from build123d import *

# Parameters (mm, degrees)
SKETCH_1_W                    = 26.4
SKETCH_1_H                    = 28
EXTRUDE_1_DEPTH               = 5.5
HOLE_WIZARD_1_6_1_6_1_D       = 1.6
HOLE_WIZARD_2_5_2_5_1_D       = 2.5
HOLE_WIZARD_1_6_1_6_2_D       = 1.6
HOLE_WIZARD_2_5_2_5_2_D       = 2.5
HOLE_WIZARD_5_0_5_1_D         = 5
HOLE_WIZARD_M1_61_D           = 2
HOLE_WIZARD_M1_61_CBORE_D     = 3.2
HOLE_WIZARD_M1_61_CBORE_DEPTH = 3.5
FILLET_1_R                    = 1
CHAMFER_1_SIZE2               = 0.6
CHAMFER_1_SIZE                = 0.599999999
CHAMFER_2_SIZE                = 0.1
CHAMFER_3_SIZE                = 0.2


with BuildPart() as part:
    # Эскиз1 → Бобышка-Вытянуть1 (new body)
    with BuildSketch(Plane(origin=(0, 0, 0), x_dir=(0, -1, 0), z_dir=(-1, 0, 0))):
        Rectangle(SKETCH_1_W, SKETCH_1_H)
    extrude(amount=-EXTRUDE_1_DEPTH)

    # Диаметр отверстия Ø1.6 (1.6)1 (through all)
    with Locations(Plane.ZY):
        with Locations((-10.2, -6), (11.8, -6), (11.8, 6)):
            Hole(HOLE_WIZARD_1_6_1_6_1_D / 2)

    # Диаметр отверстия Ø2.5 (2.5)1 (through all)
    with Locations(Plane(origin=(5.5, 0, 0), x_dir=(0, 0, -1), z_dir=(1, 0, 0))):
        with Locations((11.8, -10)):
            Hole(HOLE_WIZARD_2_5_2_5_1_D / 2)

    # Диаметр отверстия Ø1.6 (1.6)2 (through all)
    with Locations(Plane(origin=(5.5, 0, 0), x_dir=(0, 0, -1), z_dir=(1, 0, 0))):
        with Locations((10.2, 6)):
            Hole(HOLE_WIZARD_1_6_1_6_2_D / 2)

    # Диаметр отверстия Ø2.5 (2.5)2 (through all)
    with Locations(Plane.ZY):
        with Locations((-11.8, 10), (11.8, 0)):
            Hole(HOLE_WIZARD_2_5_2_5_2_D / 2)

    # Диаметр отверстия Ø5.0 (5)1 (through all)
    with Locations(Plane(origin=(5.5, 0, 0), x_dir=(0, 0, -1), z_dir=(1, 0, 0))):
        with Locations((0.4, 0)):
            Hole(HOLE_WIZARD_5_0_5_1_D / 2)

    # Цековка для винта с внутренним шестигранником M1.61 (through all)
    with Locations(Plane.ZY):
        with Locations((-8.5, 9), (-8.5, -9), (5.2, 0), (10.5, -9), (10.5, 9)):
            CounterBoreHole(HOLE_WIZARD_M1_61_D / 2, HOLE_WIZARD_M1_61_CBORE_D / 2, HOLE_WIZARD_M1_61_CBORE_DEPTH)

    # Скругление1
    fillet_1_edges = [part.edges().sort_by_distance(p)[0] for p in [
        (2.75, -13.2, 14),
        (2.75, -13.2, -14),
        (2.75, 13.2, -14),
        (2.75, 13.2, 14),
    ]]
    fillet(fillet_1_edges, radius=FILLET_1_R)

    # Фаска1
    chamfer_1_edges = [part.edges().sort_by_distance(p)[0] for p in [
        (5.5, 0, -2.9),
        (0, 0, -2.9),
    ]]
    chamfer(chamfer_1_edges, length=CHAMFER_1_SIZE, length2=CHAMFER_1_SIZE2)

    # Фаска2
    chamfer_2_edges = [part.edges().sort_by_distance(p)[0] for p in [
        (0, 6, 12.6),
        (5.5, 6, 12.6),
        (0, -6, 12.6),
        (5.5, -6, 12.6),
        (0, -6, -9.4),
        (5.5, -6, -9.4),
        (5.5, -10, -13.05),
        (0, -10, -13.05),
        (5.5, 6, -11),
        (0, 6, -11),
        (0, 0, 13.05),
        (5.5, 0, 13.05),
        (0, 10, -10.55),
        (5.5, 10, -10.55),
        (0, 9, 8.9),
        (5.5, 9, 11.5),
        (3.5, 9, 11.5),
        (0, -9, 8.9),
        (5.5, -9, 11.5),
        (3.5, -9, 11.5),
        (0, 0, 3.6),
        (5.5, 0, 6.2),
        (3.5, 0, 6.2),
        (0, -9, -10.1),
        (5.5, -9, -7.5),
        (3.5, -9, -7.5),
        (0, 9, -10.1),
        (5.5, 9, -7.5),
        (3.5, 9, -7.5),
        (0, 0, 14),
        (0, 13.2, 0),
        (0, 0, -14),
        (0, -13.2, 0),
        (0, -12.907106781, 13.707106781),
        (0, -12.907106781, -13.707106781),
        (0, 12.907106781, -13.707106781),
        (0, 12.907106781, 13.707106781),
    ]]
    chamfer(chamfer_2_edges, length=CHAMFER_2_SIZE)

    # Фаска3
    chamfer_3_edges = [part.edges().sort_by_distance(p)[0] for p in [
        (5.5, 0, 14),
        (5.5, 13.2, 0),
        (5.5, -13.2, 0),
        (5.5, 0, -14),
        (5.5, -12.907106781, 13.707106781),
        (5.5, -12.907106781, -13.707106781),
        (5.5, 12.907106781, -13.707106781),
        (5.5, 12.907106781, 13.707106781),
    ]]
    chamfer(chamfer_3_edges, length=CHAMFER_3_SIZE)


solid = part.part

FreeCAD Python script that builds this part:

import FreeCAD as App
import Part
import Sketcher

V = App.Vector
Q = App.Units.Quantity


def edges_at(feature, points):
    """Names of the edges that pass closest to the given points."""
    edges = feature.Shape.Edges
    near = lambda p: min(range(len(edges)), key=lambda i: edges[i].distToShape(Part.Vertex(*p))[0])
    return sorted({f"Edge{near(p) + 1}" for p in points})


def add_polygon(sketch, points):
    """Adds a closed chain of lines whose ends are joined by coincident constraints."""
    first, n = sketch.GeometryCount, len(points)
    for a, b in zip(points, points[1:] + points[:1]):
        sketch.addGeometry(Part.LineSegment(App.Vector(*a, 0), App.Vector(*b, 0)), False)
    for i in range(n):
        sketch.addConstraint(Sketcher.Constraint("Coincident", first + i, 2, first + (i + 1) % n, 1))

doc = App.newDocument("Part")
params = doc.addObject("Spreadsheet::Sheet", "Params")
for row, (alias, value) in enumerate([
    ("sketch1_height", "28 mm"),
    ("sketch1_width", "26.4 mm"),
    ("pad1_length", "5.5 mm"),
    ("sketch2_diameter", "1.6 mm"),
    ("hole_diameter", "1.6 mm"),
    ("sketch3_diameter", "2.5 mm"),
    ("hole2_diameter", "2.5 mm"),
    ("sketch4_diameter", "1.6 mm"),
    ("hole3_diameter", "1.6 mm"),
    ("sketch5_diameter", "2.5 mm"),
    ("hole4_diameter", "2.5 mm"),
    ("sketch6_diameter", "5 mm"),
    ("hole5_diameter", "5 mm"),
    ("sketch7_diameter", "2 mm"),
    ("hole6_diameter", "2 mm"),
    ("hole6_cbore_diameter", "3.2 mm"),
    ("hole6_cbore_depth", "3.5 mm"),
    ("fillet_radius", "1 mm"),
    ("chamfer_size", "0.6 mm"),
    ("chamfer_size2", "0.6 mm"),
    ("chamfer2_size", "0.1 mm"),
    ("chamfer3_size", "0.2 mm"),
], start=1):
    params.set(f"A{row}", alias)
    params.set(f"B{row}", "=" + value)
    params.setAlias(f"B{row}", alias)

body = doc.addObject("PartDesign::Body", "Body")

sketch1 = body.newObject("Sketcher::SketchObject", "Sketch")
sketch1.AttachmentSupport = (doc.getObject("YZ_Plane"), [""])
sketch1.MapMode = "FlatFace"
add_polygon(sketch1, [(13.2, 14), (13.2, -14), (-13.2, -14), (-13.2, 14)])
sketch1.addConstraint(Sketcher.Constraint("Vertical", 0))
sketch1.addConstraint(Sketcher.Constraint("Horizontal", 1))
sketch1.addConstraint(Sketcher.Constraint("Vertical", 2))
sketch1.addConstraint(Sketcher.Constraint("Horizontal", 3))
sketch1.addConstraint(Sketcher.Constraint("Symmetric", 0, 2, 2, 2, -1, 1))
sketch1.addConstraint(Sketcher.Constraint("DistanceY", 0, 2, 0, 1, Q("28 mm")))
sketch1.addConstraint(Sketcher.Constraint("DistanceX", 1, 2, 1, 1, Q("26.4 mm")))
sketch1.setExpression("Constraints[9]", "Params.sketch1_height")
sketch1.setExpression("Constraints[10]", "Params.sketch1_width")
pad1 = body.newObject("PartDesign::Pad", "Pad")
pad1.Profile = sketch1
pad1.setExpression("Length", "Params.pad1_length")

sketch2 = body.newObject("Sketcher::SketchObject", "Sketch001")
sketch2.AttachmentSupport = (doc.getObject("YZ_Plane"), [""])
sketch2.MapMode = "FlatFace"
sketch2.addGeometry(Part.Circle(V(-6, -10.2, 0), V(0, 0, 1), 0.8), False)
sketch2.addGeometry(Part.Circle(V(-6, 11.8, 0), V(0, 0, 1), 0.8), False)
sketch2.addGeometry(Part.Circle(V(6, 11.8, 0), V(0, 0, 1), 0.8), False)
sketch2.addConstraint(Sketcher.Constraint("Equal", 0, 1))
sketch2.addConstraint(Sketcher.Constraint("Equal", 1, 2))
sketch2.addConstraint(Sketcher.Constraint("Symmetric", 1, 3, 2, 3, -2))
sketch2.addConstraint(Sketcher.Constraint("Vertical", 0, 3, 1, 3))
sketch2.addConstraint(Sketcher.Constraint("Diameter", 0, Q("1.6 mm")))
sketch2.addConstraint(Sketcher.Constraint("DistanceX", 0, 3, -1, 1, Q("6 mm")))
sketch2.addConstraint(Sketcher.Constraint("DistanceY", 0, 3, 1, 3, Q("22 mm")))
sketch2.addConstraint(Sketcher.Constraint("DistanceY", 0, 3, -1, 1, Q("10.2 mm")))
sketch2.setExpression("Constraints[4]", "Params.sketch2_diameter")
doc.recompute()
hole = body.newObject("PartDesign::Hole", "Hole")
hole.Profile = sketch2
hole.ThreadType = "None"
hole.setExpression("Diameter", "Params.hole_diameter")
hole.DepthType = "ThroughAll"
hole.Reversed = True

sketch3 = body.newObject("Sketcher::SketchObject", "Sketch002")
sketch3.AttachmentSupport = (doc.getObject("YZ_Plane"), [""])
sketch3.MapMode = "FlatFace"
sketch3.AttachmentOffset = App.Placement(V(0, 0, 5.5), App.Rotation())
sketch3.addGeometry(Part.Circle(V(-10, -11.8, 0), V(0, 0, 1), 1.25), False)
sketch3.addConstraint(Sketcher.Constraint("Diameter", 0, Q("2.5 mm")))
sketch3.addConstraint(Sketcher.Constraint("DistanceX", 0, 3, -1, 1, Q("10 mm")))
sketch3.addConstraint(Sketcher.Constraint("DistanceY", 0, 3, -1, 1, Q("11.8 mm")))
sketch3.setExpression("Constraints[0]", "Params.sketch3_diameter")
doc.recompute()
hole2 = body.newObject("PartDesign::Hole", "Hole001")
hole2.Profile = sketch3
hole2.ThreadType = "None"
hole2.setExpression("Diameter", "Params.hole2_diameter")
hole2.DepthType = "ThroughAll"

sketch4 = body.newObject("Sketcher::SketchObject", "Sketch003")
sketch4.AttachmentSupport = (doc.getObject("YZ_Plane"), [""])
sketch4.MapMode = "FlatFace"
sketch4.AttachmentOffset = App.Placement(V(0, 0, 5.5), App.Rotation())
sketch4.addGeometry(Part.Circle(V(6, -10.2, 0), V(0, 0, 1), 0.8), False)
sketch4.addConstraint(Sketcher.Constraint("Diameter", 0, Q("1.6 mm")))
sketch4.addConstraint(Sketcher.Constraint("DistanceX", -1, 1, 0, 3, Q("6 mm")))
sketch4.addConstraint(Sketcher.Constraint("DistanceY", 0, 3, -1, 1, Q("10.2 mm")))
sketch4.setExpression("Constraints[0]", "Params.sketch4_diameter")
doc.recompute()
hole3 = body.newObject("PartDesign::Hole", "Hole002")
hole3.Profile = sketch4
hole3.ThreadType = "None"
hole3.setExpression("Diameter", "Params.hole3_diameter")
hole3.DepthType = "ThroughAll"

sketch5 = body.newObject("Sketcher::SketchObject", "Sketch004")
sketch5.AttachmentSupport = (doc.getObject("YZ_Plane"), [""])
sketch5.MapMode = "FlatFace"
sketch5.addGeometry(Part.Circle(V(10, -11.8, 0), V(0, 0, 1), 1.25), False)
sketch5.addGeometry(Part.Circle(V(0, 11.8, 0), V(0, 0, 1), 1.25), False)
sketch5.addConstraint(Sketcher.Constraint("Equal", 0, 1))
sketch5.addConstraint(Sketcher.Constraint("PointOnObject", 1, 3, -2))
sketch5.addConstraint(Sketcher.Constraint("Diameter", 0, Q("2.5 mm")))
sketch5.addConstraint(Sketcher.Constraint("DistanceX", -1, 1, 0, 3, Q("10 mm")))
sketch5.addConstraint(Sketcher.Constraint("DistanceY", 0, 3, -1, 1, Q("11.8 mm")))
sketch5.addConstraint(Sketcher.Constraint("DistanceY", -1, 1, 1, 3, Q("11.8 mm")))
sketch5.setExpression("Constraints[2]", "Params.sketch5_diameter")
doc.recompute()
hole4 = body.newObject("PartDesign::Hole", "Hole003")
hole4.Profile = sketch5
hole4.ThreadType = "None"
hole4.setExpression("Diameter", "Params.hole4_diameter")
hole4.DepthType = "ThroughAll"
hole4.Reversed = True

sketch6 = body.newObject("Sketcher::SketchObject", "Sketch005")
sketch6.AttachmentSupport = (doc.getObject("YZ_Plane"), [""])
sketch6.MapMode = "FlatFace"
sketch6.AttachmentOffset = App.Placement(V(0, 0, 5.5), App.Rotation())
sketch6.addGeometry(Part.Circle(V(0, -0.4, 0), V(0, 0, 1), 2.5), False)
sketch6.addConstraint(Sketcher.Constraint("PointOnObject", 0, 3, -2))
sketch6.addConstraint(Sketcher.Constraint("Diameter", 0, Q("5 mm")))
sketch6.addConstraint(Sketcher.Constraint("DistanceY", 0, 3, -1, 1, Q("0.4 mm")))
sketch6.setExpression("Constraints[1]", "Params.sketch6_diameter")
doc.recompute()
hole5 = body.newObject("PartDesign::Hole", "Hole004")
hole5.Profile = sketch6
hole5.ThreadType = "None"
hole5.setExpression("Diameter", "Params.hole5_diameter")
hole5.DepthType = "ThroughAll"

sketch7 = body.newObject("Sketcher::SketchObject", "Sketch006")
sketch7.AttachmentSupport = (doc.getObject("YZ_Plane"), [""])
sketch7.MapMode = "FlatFace"
sketch7.addGeometry(Part.Circle(V(9, -8.5, 0), V(0, 0, 1), 1), False)
sketch7.addGeometry(Part.Circle(V(-9, -8.5, 0), V(0, 0, 1), 1), False)
sketch7.addGeometry(Part.Circle(V(0, 5.2, 0), V(0, 0, 1), 1), False)
sketch7.addGeometry(Part.Circle(V(-9, 10.5, 0), V(0, 0, 1), 1), False)
sketch7.addGeometry(Part.Circle(V(9, 10.5, 0), V(0, 0, 1), 1), False)
sketch7.addConstraint(Sketcher.Constraint("Equal", 0, 1))
sketch7.addConstraint(Sketcher.Constraint("Equal", 1, 2))
sketch7.addConstraint(Sketcher.Constraint("Equal", 2, 3))
sketch7.addConstraint(Sketcher.Constraint("Equal", 3, 4))
sketch7.addConstraint(Sketcher.Constraint("Symmetric", 0, 3, 1, 3, -2))
sketch7.addConstraint(Sketcher.Constraint("Symmetric", 3, 3, 4, 3, -2))
sketch7.addConstraint(Sketcher.Constraint("PointOnObject", 2, 3, -2))
sketch7.addConstraint(Sketcher.Constraint("Vertical", 1, 3, 3, 3))
sketch7.addConstraint(Sketcher.Constraint("Diameter", 0, Q("2 mm")))
sketch7.addConstraint(Sketcher.Constraint("DistanceX", -1, 1, 0, 3, Q("9 mm")))
sketch7.addConstraint(Sketcher.Constraint("DistanceY", 1, 3, 3, 3, Q("19 mm")))
sketch7.addConstraint(Sketcher.Constraint("DistanceY", 0, 3, -1, 1, Q("8.5 mm")))
sketch7.addConstraint(Sketcher.Constraint("DistanceY", -1, 1, 2, 3, Q("5.2 mm")))
sketch7.setExpression("Constraints[8]", "Params.sketch7_diameter")
doc.recompute()
hole6 = body.newObject("PartDesign::Hole", "Hole005")
hole6.Profile = sketch7
hole6.ThreadType = "None"
hole6.setExpression("Diameter", "Params.hole6_diameter")
hole6.DepthType = "ThroughAll"
hole6.HoleCutType = "Counterbore"
hole6.setExpression("HoleCutDiameter", "Params.hole6_cbore_diameter")
hole6.setExpression("HoleCutDepth", "Params.hole6_cbore_depth")
hole6.Reversed = True
doc.recompute()

fillet = body.newObject("PartDesign::Fillet", "Fillet")
fillet.Base = (hole6, edges_at(hole6, [
    (2.75, -13.2, 14),
    (2.75, -13.2, -14),
    (2.75, 13.2, -14),
    (2.75, 13.2, 14),
]))
fillet.setExpression("Radius", "Params.fillet_radius")
doc.recompute()

chamfer = body.newObject("PartDesign::Chamfer", "Chamfer")
chamfer.Base = (fillet, edges_at(fillet, [(5.5, 0, -2.9), (0, 0, -2.9)]))
chamfer.ChamferType = "Two distances"
chamfer.setExpression("Size", "Params.chamfer_size")
chamfer.setExpression("Size2", "Params.chamfer_size2")
doc.recompute()

chamfer2 = body.newObject("PartDesign::Chamfer", "Chamfer001")
chamfer2.Base = (chamfer, edges_at(chamfer, [
    (0, 6, 12.6),
    (5.5, 6, 12.6),
    (0, -6, 12.6),
    (5.5, -6, 12.6),
    (0, -6, -9.4),
    (5.5, -6, -9.4),
    (5.5, -10, -13.05),
    (0, -10, -13.05),
    (5.5, 6, -11),
    (0, 6, -11),
    (0, 0, 13.05),
    (5.5, 0, 13.05),
    (0, 10, -10.55),
    (5.5, 10, -10.55),
    (0, 9, 8.9),
    (5.5, 9, 11.5),
    (3.5, 9, 11.5),
    (0, -9, 8.9),
    (5.5, -9, 11.5),
    (3.5, -9, 11.5),
    (0, 0, 3.6),
    (5.5, 0, 6.2),
    (3.5, 0, 6.2),
    (0, -9, -10.1),
    (5.5, -9, -7.5),
    (3.5, -9, -7.5),
    (0, 9, -10.1),
    (5.5, 9, -7.5),
    (3.5, 9, -7.5),
    (0, 0, 14),
    (0, 13.2, 0),
    (0, 0, -14),
    (0, -13.2, 0),
    (0, -12.907, 13.707),
    (0, -12.907, -13.707),
    (0, 12.907, -13.707),
    (0, 12.907, 13.707),
]))
chamfer2.setExpression("Size", "Params.chamfer2_size")
doc.recompute()

chamfer3 = body.newObject("PartDesign::Chamfer", "Chamfer002")
chamfer3.Base = (chamfer2, edges_at(chamfer2, [
    (5.5, 0, 14),
    (5.5, 13.2, 0),
    (5.5, -13.2, 0),
    (5.5, 0, -14),
    (5.5, -12.907, 13.707),
    (5.5, -12.907, -13.707),
    (5.5, 12.907, -13.707),
    (5.5, 12.907, 13.707),
]))
chamfer3.setExpression("Size", "Params.chamfer3_size")

doc.recompute()
